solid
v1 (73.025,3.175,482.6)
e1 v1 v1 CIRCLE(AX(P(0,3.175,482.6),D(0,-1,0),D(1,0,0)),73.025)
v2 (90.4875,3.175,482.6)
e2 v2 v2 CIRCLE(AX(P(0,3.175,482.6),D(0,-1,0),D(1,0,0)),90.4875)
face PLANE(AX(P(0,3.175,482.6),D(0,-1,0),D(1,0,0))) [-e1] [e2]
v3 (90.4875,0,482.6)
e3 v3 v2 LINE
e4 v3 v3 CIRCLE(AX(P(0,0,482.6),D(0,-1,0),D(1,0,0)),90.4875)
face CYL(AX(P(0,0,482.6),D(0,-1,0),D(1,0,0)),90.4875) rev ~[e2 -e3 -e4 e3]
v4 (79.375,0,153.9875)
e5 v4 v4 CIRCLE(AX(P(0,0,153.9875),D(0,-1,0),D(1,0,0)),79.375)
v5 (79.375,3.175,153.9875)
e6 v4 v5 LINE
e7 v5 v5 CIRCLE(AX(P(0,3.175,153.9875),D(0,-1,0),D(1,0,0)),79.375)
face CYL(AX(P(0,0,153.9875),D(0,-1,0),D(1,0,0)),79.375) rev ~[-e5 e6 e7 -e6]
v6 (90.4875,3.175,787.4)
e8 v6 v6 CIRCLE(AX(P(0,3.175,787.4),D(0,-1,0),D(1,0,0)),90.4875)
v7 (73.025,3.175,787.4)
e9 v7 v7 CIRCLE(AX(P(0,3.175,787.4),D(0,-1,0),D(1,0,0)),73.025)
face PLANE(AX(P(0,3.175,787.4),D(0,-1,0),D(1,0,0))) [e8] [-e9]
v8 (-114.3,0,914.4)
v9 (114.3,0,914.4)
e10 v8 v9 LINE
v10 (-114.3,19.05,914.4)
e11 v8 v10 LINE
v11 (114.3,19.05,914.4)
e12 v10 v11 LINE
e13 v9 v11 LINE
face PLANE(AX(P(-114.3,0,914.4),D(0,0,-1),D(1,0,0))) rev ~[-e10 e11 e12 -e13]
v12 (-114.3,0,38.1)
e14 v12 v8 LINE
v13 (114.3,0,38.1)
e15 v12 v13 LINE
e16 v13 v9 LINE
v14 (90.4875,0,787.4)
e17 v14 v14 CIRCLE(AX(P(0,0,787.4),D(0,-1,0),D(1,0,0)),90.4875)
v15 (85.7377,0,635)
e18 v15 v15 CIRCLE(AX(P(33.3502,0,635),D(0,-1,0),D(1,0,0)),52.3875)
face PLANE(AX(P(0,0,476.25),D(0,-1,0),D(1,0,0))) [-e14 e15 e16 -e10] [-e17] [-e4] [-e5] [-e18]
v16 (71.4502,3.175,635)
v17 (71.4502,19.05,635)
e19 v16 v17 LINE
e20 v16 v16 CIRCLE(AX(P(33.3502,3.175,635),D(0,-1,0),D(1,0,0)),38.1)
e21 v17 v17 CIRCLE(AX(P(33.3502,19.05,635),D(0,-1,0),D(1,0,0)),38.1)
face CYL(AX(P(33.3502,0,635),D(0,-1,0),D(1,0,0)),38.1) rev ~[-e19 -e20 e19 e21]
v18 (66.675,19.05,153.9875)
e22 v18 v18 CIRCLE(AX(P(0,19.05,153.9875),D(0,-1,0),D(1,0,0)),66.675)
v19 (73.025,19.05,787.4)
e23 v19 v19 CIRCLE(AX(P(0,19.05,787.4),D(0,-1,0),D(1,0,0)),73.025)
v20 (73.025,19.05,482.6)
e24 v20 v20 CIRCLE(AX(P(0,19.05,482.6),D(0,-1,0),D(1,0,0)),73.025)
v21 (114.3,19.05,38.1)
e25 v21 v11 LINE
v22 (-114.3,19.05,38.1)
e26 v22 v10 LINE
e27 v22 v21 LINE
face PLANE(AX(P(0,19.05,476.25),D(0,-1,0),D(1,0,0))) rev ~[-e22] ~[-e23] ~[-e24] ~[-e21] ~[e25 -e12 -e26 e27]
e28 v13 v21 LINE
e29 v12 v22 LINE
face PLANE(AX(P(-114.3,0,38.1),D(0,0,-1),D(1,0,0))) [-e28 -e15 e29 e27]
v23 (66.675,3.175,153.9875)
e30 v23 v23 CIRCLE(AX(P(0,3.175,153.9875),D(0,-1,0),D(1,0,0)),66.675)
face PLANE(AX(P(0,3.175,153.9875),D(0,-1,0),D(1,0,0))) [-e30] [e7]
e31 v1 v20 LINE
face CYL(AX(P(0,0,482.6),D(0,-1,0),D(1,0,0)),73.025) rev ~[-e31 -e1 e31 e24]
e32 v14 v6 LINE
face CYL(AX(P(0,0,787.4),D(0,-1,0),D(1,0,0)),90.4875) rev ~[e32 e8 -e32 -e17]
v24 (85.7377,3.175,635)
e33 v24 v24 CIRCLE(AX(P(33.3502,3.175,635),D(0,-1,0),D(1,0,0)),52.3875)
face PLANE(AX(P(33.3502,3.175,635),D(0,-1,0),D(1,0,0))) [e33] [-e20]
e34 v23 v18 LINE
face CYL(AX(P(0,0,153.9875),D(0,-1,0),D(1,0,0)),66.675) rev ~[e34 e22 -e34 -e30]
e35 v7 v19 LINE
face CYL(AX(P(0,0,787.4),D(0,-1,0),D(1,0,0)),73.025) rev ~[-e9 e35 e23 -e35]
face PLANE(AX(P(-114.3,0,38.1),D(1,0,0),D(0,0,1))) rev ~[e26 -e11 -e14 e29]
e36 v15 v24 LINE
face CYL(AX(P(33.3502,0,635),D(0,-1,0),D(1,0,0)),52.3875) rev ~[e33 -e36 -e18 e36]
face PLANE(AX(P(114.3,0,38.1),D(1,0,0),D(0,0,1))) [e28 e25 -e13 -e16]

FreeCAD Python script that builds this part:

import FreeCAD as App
import Part
import Sketcher
from FreeCAD import Vector
Q = App.Units.Quantity


def add_polygon(sketch, points):
    """Adds a closed chain of lines whose ends are joined by coincident constraints."""
    first, n = sketch.GeometryCount, len(points)
    for a, b in zip(points, points[1:] + points[:1]):
        sketch.addGeometry(Part.LineSegment(App.Vector(*a, 0), App.Vector(*b, 0)), False)
    for i in range(n):
        sketch.addConstraint(Sketcher.Constraint("Coincident", first + i, 2, first + (i + 1) % n, 1))

doc = App.newDocument("Part")
body = doc.addObject("PartDesign::Body", "Body")

# Sketch on XZ plane
sketch1 = body.newObject("Sketcher::SketchObject", "Sketch")
sketch1.AttachmentSupport = (doc.getObject("XZ_Plane"), [""])
sketch1.MapMode = "FlatFace"
add_polygon(sketch1, [(-114, 914), (-114, 38), (114, 38), (114, 914)])  # lines 0-3
sketch1.addGeometry(Part.Circle(Vector(0, 154, 0), Vector(0, 0, 1), 67), False)  # 4
sketch1.addGeometry(Part.Circle(Vector(0, 483, 0), Vector(0, 0, 1), 73), False)  # 5
sketch1.addGeometry(Part.Circle(Vector(33, 635, 0), Vector(0, 0, 1), 38), False)  # 6
sketch1.addGeometry(Part.Circle(Vector(0, 787, 0), Vector(0, 0, 1), 73), False)  # 7
sketch1.addConstraint(Sketcher.Constraint("Vertical", 0))
sketch1.addConstraint(Sketcher.Constraint("Horizontal", 1))
sketch1.addConstraint(Sketcher.Constraint("Vertical", 2))
sketch1.addConstraint(Sketcher.Constraint("Horizontal", 3))
sketch1.addConstraint(Sketcher.Constraint("Equal", 5, 7))
sketch1.addConstraint(Sketcher.Constraint("PointOnObject", 4, 3, -2))
sketch1.addConstraint(Sketcher.Constraint("PointOnObject", 5, 3, -2))
sketch1.addConstraint(Sketcher.Constraint("PointOnObject", 7, 3, -2))
sketch1.addConstraint(Sketcher.Constraint("Diameter", 6, Q("3 in")))
sketch1.addConstraint(Sketcher.Constraint("Diameter", 4, Q("5.25 in")))
sketch1.addConstraint(Sketcher.Constraint("Diameter", 5, Q("5.75 in")))
sketch1.addConstraint(Sketcher.Constraint("DistanceX", 1, 1, 1, 2, Q("9 in")))
sketch1.addConstraint(Sketcher.Constraint("DistanceY", 0, 2, 0, 1, Q("34.5 in")))
sketch1.addConstraint(Sketcher.Constraint("DistanceY", -1, 1, 5, 3, Q("19 in")))
sketch1.addConstraint(Sketcher.Constraint("DistanceY", -1, 1, 6, 3, Q("25 in")))
sketch1.addConstraint(Sketcher.Constraint("DistanceY", -1, 1, 7, 3, Q("31 in")))
sketch1.addConstraint(Sketcher.Constraint("DistanceY", -1, 1, 2, 2, Q("36 in")))
sketch1.addConstraint(Sketcher.Constraint("DistanceX", 0, 2, -1, 1, Q("4.5 in")))
sketch1.addConstraint(Sketcher.Constraint("DistanceY", -1, 1, 4, 3, Q("6.0625 in")))
sketch1.addConstraint(Sketcher.Constraint("DistanceX", -1, 1, 6, 3, Q("1.313 in")))
pad1 = body.newObject("PartDesign::Pad", "Pad")
pad1.Profile = sketch1
pad1.Length = Q("0.75 in")
pad1.Reversed = True

# Sketch on XZ plane
sketch2 = body.newObject("Sketcher::SketchObject", "Sketch001")
sketch2.AttachmentSupport = (doc.getObject("XZ_Plane"), [""])
sketch2.MapMode = "FlatFace"
sketch2.addGeometry(Part.Circle(Vector(0, 787, 0), Vector(0, 0, 1), 90), False)
sketch2.addGeometry(Part.Circle(Vector(0, 787, 0), Vector(0, 0, 1), 73), False)
sketch2.addGeometry(Part.Circle(Vector(33, 635, 0), Vector(0, 0, 1), 52), False)
sketch2.addGeometry(Part.Circle(Vector(33, 635, 0), Vector(0, 0, 1), 38), False)
sketch2.addGeometry(Part.Circle(Vector(0, 483, 0), Vector(0, 0, 1), 90), False)
sketch2.addGeometry(Part.Circle(Vector(0, 483, 0), Vector(0, 0, 1), 73), False)
sketch2.addGeometry(Part.Circle(Vector(0, 154, 0), Vector(0, 0, 1), 79), False)
sketch2.addGeometry(Part.Circle(Vector(0, 154, 0), Vector(0, 0, 1), 67), False)
sketch2.addConstraint(Sketcher.Constraint("Coincident", 1, 3, 0, 3))
sketch2.addConstraint(Sketcher.Constraint("Coincident", 3, 3, 2, 3))
sketch2.addConstraint(Sketcher.Constraint("Coincident", 5, 3, 4, 3))
sketch2.addConstraint(Sketcher.Constraint("Coincident", 7, 3, 6, 3))
sketch2.addConstraint(Sketcher.Constraint("Equal", 0, 4))
sketch2.addConstraint(Sketcher.Constraint("Equal", 1, 5))
sketch2.addConstraint(Sketcher.Constraint("PointOnObject", 0, 3, -2))
sketch2.addConstraint(Sketcher.Constraint("PointOnObject", 4, 3, -2))
sketch2.addConstraint(Sketcher.Constraint("PointOnObject", 6, 3, -2))
sketch2.addConstraint(Sketcher.Constraint("Diameter", 3, Q("3 in")))
sketch2.addConstraint(Sketcher.Constraint("Diameter", 1, Q("5.75 in")))
sketch2.addConstraint(Sketcher.Constraint("Diameter", 6, Q("6.25 in")))
sketch2.addConstraint(Sketcher.Constraint("Diameter", 7, Q("5.25 in")))
sketch2.addConstraint(Sketcher.Constraint("Diameter", 0, Q("7.125 in")))
sketch2.addConstraint(Sketcher.Constraint("Diameter", 2, Q("4.125 in")))
sketch2.addConstraint(Sketcher.Constraint("DistanceY", -1, 1, 0, 3, Q("31 in")))
sketch2.addConstraint(Sketcher.Constraint("DistanceY", -1, 1, 2, 3, Q("25 in")))
sketch2.addConstraint(Sketcher.Constraint("DistanceY", -1, 1, 4, 3, Q("19 in")))
sketch2.addConstraint(Sketcher.Constraint("DistanceX", -1, 1, 2, 3, Q("1.313 in")))
sketch2.addConstraint(Sketcher.Constraint("DistanceY", -1, 1, 6, 3, Q("6.0625 in")))
pocket1 = body.newObject("PartDesign::Pocket", "Pocket")
pocket1.Profile = sketch2
pocket1.Length = Q("0.125 in")

doc.recompute()
